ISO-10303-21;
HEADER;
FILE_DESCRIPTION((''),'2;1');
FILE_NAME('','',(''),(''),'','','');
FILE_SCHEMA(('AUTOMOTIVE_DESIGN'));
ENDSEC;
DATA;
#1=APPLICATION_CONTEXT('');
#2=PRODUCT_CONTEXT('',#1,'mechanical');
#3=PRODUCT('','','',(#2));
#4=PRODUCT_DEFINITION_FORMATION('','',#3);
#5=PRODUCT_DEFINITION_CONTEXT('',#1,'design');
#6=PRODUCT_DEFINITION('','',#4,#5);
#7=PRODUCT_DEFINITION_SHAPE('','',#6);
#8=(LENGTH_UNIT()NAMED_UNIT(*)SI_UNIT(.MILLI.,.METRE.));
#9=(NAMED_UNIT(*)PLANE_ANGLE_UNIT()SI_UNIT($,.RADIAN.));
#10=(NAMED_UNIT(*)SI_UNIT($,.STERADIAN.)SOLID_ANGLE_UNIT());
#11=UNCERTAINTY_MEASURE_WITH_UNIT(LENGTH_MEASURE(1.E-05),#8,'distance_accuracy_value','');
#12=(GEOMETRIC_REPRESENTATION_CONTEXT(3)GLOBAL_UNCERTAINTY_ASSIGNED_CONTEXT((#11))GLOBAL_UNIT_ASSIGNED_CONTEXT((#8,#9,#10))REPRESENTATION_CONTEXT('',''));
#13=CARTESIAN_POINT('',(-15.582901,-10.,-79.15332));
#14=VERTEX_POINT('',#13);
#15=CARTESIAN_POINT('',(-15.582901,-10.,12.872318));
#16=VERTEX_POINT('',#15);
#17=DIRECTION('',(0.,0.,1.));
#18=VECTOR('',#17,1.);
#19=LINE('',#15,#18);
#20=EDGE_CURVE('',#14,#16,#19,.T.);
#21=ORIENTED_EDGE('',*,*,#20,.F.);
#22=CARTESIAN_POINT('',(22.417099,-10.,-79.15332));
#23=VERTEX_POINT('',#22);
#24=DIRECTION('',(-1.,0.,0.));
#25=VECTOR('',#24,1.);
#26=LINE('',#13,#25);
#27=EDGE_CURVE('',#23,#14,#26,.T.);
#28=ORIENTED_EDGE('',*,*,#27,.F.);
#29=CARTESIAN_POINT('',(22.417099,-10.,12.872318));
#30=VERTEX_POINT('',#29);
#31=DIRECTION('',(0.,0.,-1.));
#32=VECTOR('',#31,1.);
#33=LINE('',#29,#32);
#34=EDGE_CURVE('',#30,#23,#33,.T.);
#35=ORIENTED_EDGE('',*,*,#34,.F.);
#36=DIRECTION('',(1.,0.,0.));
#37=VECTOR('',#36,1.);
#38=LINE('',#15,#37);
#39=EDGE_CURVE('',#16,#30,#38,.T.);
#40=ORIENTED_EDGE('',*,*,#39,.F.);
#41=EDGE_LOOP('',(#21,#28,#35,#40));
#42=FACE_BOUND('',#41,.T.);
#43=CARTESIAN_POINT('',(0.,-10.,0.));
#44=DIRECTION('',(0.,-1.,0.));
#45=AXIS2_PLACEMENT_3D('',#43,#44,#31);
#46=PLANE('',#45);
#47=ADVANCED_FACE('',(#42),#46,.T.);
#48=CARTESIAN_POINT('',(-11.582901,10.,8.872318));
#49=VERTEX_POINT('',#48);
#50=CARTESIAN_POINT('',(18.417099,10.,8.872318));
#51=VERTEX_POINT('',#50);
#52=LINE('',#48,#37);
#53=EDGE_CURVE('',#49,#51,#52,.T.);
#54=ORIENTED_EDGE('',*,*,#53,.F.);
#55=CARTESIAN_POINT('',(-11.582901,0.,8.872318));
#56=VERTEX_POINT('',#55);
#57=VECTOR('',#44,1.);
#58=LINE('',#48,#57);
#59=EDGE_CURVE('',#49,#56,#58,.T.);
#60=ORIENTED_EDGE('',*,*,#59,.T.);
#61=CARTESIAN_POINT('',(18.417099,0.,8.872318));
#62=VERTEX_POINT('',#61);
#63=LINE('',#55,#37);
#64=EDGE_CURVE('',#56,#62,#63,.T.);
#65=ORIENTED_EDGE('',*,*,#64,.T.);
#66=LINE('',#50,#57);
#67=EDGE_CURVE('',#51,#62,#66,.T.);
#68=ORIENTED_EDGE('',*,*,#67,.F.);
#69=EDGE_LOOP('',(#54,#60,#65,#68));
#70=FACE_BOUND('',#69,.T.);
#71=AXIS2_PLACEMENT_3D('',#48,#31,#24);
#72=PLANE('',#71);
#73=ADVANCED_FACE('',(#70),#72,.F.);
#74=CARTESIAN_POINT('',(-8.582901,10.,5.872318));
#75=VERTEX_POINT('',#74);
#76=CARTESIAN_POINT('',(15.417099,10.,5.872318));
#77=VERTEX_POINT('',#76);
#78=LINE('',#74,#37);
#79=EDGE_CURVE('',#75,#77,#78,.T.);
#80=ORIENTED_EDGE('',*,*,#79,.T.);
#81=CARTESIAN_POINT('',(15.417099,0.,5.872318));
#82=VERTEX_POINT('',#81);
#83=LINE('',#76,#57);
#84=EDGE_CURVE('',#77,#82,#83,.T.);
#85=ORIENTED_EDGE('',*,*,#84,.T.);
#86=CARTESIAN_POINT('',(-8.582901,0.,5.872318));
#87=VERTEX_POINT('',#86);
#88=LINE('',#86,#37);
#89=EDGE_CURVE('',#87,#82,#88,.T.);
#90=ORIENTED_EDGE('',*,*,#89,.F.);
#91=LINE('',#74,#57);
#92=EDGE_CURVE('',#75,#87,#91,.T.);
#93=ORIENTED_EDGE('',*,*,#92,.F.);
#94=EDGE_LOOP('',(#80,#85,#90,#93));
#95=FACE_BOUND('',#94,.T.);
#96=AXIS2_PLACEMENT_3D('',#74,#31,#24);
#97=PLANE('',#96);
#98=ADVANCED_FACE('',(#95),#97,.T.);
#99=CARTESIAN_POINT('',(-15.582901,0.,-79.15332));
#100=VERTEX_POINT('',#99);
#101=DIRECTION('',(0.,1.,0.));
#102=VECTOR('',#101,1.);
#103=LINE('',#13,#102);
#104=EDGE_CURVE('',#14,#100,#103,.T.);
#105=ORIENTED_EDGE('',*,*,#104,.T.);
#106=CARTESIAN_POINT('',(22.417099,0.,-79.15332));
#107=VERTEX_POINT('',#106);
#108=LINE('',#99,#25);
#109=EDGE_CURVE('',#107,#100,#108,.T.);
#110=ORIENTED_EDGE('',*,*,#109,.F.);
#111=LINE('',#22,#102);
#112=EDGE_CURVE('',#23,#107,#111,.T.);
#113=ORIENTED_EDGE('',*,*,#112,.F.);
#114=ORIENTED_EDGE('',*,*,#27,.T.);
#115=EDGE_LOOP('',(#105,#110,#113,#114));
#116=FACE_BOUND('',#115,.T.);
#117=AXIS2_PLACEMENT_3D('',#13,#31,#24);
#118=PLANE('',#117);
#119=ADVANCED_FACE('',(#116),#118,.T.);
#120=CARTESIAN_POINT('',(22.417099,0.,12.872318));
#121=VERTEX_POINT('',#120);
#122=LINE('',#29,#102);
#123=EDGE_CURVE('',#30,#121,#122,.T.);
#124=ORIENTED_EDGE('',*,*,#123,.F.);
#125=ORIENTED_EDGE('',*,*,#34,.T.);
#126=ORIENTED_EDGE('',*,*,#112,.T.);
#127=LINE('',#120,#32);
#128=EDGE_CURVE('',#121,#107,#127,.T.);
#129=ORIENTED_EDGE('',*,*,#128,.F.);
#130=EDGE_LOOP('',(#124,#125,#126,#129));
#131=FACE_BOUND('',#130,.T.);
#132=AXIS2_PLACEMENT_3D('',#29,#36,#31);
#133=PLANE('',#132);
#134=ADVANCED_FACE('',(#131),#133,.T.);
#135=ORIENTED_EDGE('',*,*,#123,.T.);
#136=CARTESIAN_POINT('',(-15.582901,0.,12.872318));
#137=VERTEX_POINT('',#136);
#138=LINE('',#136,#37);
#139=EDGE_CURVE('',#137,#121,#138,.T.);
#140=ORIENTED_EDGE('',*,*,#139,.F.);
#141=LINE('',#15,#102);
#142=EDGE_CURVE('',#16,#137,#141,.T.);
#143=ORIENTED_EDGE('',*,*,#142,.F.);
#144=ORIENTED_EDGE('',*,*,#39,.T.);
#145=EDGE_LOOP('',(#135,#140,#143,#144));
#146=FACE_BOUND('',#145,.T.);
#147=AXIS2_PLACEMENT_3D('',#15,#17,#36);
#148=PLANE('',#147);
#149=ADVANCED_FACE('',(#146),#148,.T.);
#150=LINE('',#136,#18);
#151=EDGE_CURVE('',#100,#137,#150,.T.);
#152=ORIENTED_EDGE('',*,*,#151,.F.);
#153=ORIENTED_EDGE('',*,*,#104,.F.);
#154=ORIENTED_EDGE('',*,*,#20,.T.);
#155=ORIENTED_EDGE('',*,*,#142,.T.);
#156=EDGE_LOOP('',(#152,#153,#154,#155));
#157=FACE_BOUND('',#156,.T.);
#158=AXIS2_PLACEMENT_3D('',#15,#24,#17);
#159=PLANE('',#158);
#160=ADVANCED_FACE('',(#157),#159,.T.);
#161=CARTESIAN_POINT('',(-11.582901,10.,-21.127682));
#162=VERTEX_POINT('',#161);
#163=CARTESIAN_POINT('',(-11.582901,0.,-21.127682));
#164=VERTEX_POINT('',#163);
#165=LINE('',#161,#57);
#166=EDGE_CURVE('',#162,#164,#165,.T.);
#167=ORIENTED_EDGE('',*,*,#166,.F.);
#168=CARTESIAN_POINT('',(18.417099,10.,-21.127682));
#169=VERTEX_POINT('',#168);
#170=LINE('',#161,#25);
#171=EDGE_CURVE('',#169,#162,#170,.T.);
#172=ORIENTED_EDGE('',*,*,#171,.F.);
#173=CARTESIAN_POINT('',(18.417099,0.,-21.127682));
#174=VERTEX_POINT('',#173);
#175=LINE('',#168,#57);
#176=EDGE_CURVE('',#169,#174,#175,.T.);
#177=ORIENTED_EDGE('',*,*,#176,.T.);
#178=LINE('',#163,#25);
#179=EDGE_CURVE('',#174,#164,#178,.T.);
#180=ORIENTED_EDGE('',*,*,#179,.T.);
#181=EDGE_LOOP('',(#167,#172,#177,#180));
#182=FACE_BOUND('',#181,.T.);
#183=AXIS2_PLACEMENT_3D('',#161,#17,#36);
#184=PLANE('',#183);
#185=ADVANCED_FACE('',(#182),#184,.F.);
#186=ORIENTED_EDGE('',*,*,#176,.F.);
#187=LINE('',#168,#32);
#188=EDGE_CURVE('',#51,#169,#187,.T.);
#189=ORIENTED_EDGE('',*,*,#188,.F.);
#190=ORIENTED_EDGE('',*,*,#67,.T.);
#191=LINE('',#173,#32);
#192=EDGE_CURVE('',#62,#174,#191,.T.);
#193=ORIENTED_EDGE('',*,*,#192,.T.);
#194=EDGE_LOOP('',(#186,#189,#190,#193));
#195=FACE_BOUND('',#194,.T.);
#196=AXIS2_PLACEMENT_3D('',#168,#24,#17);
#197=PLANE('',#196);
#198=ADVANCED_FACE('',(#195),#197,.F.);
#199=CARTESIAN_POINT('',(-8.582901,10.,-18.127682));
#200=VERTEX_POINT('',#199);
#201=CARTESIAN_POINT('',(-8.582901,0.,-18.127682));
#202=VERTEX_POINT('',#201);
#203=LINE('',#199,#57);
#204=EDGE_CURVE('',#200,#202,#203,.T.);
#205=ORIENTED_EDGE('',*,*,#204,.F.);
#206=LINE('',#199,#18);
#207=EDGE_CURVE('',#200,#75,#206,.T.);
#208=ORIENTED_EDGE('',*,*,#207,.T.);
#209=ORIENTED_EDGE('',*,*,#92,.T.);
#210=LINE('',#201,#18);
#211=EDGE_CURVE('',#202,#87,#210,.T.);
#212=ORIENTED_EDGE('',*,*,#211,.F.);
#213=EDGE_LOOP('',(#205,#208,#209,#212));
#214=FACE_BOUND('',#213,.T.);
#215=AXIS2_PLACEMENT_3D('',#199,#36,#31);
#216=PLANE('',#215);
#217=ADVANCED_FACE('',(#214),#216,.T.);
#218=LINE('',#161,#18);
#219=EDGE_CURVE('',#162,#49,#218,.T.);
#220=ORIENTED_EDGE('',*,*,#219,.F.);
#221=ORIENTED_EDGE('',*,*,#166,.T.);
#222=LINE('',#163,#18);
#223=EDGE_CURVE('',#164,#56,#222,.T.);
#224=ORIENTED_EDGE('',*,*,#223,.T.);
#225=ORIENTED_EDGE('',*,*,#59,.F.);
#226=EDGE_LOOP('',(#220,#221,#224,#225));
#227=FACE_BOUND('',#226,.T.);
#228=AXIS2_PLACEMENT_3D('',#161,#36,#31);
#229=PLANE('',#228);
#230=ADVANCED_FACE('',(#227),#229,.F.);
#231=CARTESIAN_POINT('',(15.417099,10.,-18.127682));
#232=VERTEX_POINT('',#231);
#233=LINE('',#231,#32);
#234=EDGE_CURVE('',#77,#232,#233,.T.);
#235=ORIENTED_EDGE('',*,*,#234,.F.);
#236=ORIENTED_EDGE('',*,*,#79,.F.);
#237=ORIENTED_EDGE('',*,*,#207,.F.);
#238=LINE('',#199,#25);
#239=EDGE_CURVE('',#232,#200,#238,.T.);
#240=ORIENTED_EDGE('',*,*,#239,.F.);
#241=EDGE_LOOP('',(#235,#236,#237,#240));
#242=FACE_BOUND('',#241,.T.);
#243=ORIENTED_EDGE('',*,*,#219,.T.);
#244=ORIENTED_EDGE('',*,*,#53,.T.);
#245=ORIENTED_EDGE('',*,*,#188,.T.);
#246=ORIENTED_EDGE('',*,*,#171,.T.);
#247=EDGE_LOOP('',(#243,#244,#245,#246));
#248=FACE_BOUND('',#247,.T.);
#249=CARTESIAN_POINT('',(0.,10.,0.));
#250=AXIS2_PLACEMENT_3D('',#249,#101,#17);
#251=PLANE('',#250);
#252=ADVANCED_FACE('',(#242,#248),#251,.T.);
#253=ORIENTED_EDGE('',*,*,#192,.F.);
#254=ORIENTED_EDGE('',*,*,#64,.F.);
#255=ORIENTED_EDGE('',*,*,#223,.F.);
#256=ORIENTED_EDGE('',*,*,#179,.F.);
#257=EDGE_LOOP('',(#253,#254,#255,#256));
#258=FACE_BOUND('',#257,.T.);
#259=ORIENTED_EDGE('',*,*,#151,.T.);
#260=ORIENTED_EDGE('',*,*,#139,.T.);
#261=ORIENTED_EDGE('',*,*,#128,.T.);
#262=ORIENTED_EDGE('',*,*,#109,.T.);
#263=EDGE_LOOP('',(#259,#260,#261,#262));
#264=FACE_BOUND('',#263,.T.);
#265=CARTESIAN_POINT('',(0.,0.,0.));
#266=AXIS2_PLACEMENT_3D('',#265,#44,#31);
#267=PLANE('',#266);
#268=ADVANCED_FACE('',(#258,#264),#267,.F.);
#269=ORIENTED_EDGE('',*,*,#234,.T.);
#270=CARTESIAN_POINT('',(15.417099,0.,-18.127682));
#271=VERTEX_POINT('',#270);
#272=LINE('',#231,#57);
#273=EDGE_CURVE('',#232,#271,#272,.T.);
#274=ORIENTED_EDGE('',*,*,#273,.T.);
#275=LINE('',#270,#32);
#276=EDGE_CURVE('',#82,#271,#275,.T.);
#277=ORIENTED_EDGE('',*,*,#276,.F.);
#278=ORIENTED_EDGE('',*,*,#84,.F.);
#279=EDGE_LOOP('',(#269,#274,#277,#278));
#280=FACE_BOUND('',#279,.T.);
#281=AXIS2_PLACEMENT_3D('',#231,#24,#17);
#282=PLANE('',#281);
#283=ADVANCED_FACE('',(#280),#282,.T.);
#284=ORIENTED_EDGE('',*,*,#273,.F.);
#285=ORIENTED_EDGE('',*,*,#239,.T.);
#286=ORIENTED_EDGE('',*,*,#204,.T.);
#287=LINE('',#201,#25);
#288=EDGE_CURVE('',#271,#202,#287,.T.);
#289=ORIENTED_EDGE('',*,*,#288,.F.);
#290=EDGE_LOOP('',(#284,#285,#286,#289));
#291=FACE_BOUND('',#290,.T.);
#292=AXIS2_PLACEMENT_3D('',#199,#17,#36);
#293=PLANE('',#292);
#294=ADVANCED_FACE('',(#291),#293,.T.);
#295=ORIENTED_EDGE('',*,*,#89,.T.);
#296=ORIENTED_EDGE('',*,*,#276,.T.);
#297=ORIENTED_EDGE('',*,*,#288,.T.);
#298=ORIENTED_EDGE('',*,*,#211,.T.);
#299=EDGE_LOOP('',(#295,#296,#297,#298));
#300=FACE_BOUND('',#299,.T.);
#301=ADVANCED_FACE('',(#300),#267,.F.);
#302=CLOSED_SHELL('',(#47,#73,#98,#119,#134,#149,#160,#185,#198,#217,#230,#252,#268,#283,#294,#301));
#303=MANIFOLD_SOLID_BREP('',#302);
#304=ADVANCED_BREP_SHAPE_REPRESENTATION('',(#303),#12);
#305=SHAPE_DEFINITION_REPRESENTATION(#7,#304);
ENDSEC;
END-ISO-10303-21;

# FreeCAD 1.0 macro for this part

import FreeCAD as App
import Part
import Sketcher
from FreeCAD import Vector


def add_polygon(sketch, points):
    """Adds a closed chain of lines whose ends are joined by coincident constraints."""
    first, n = sketch.GeometryCount, len(points)
    for a, b in zip(points, points[1:] + points[:1]):
        sketch.addGeometry(Part.LineSegment(App.Vector(*a, 0), App.Vector(*b, 0)), False)
    for i in range(n):
        sketch.addConstraint(Sketcher.Constraint("Coincident", first + i, 2, first + (i + 1) % n, 1))

doc = App.newDocument("Part")
body = doc.addObject("PartDesign::Body", "Body")

# Sketch on XZ plane
sketch1 = body.newObject("Sketcher::SketchObject", "Sketch")
sketch1.AttachmentSupport = (doc.getObject("XZ_Plane"), [""])
sketch1.MapMode = "FlatFace"
add_polygon(sketch1, [(-12, -21), (-12, 9), (18, 9), (18, -21)])  # lines 0-3
add_polygon(sketch1, [(15, 6), (-9, 6), (-9, -18), (15, -18)])  # lines 4-7
sketch1.addConstraint([
    Sketcher.Constraint("Vertical", 0),
    Sketcher.Constraint("Horizontal", 1),
    Sketcher.Constraint("Vertical", 2),
    Sketcher.Constraint("Horizontal", 3),
    Sketcher.Constraint("Horizontal", 4),
    Sketcher.Constraint("Vertical", 5),
    Sketcher.Constraint("Horizontal", 6),
    Sketcher.Constraint("Vertical", 7),
    Sketcher.Constraint("Equal", 3, 0),
    Sketcher.Constraint("Equal", 6, 5),
    Sketcher.Constraint("DistanceX", 1, 1, 1, 2, 30.0),
    Sketcher.Constraint("DistanceX", 4, 2, 4, 1, 24.0),
    Sketcher.Constraint("DistanceX", 0, 2, 4, 2, 3.0),
    Sketcher.Constraint("DistanceY", 4, 2, 0, 2, 3.0),
    Sketcher.Constraint("DistanceX", 0, 2, -1, 1, 11.582901),
    Sketcher.Constraint("DistanceY", -1, 1, 0, 2, 8.872318),
])
pad1 = body.newObject("PartDesign::Pad", "Pad")
pad1.Profile = sketch1
pad1.Length = 10
pad1.Reversed = True

# Sketch on XZ plane
sketch2 = body.newObject("Sketcher::SketchObject", "Sketch001")
sketch2.AttachmentSupport = (doc.getObject("XZ_Plane"), [""])
sketch2.MapMode = "FlatFace"
add_polygon(sketch2, [(-16, -79), (-16, 13), (22, 13), (22, -79)])  # lines 0-3
sketch2.addConstraint([
    Sketcher.Constraint("Vertical", 0),
    Sketcher.Constraint("Horizontal", 1),
    Sketcher.Constraint("Vertical", 2),
    Sketcher.Constraint("Horizontal", 3),
    Sketcher.Constraint("DistanceX", 1, 1, 1, 2, 38.0),
    Sketcher.Constraint("DistanceY", 0, 1, 0, 2, 92.025639),
    Sketcher.Constraint("DistanceX", 0, 2, -1, 1, 15.582901),
    Sketcher.Constraint("DistanceY", -1, 1, 0, 2, 12.872318),
])
pad2 = body.newObject("PartDesign::Pad", "Pad001")
pad2.Profile = sketch2
pad2.Length = 10

doc.recompute()
